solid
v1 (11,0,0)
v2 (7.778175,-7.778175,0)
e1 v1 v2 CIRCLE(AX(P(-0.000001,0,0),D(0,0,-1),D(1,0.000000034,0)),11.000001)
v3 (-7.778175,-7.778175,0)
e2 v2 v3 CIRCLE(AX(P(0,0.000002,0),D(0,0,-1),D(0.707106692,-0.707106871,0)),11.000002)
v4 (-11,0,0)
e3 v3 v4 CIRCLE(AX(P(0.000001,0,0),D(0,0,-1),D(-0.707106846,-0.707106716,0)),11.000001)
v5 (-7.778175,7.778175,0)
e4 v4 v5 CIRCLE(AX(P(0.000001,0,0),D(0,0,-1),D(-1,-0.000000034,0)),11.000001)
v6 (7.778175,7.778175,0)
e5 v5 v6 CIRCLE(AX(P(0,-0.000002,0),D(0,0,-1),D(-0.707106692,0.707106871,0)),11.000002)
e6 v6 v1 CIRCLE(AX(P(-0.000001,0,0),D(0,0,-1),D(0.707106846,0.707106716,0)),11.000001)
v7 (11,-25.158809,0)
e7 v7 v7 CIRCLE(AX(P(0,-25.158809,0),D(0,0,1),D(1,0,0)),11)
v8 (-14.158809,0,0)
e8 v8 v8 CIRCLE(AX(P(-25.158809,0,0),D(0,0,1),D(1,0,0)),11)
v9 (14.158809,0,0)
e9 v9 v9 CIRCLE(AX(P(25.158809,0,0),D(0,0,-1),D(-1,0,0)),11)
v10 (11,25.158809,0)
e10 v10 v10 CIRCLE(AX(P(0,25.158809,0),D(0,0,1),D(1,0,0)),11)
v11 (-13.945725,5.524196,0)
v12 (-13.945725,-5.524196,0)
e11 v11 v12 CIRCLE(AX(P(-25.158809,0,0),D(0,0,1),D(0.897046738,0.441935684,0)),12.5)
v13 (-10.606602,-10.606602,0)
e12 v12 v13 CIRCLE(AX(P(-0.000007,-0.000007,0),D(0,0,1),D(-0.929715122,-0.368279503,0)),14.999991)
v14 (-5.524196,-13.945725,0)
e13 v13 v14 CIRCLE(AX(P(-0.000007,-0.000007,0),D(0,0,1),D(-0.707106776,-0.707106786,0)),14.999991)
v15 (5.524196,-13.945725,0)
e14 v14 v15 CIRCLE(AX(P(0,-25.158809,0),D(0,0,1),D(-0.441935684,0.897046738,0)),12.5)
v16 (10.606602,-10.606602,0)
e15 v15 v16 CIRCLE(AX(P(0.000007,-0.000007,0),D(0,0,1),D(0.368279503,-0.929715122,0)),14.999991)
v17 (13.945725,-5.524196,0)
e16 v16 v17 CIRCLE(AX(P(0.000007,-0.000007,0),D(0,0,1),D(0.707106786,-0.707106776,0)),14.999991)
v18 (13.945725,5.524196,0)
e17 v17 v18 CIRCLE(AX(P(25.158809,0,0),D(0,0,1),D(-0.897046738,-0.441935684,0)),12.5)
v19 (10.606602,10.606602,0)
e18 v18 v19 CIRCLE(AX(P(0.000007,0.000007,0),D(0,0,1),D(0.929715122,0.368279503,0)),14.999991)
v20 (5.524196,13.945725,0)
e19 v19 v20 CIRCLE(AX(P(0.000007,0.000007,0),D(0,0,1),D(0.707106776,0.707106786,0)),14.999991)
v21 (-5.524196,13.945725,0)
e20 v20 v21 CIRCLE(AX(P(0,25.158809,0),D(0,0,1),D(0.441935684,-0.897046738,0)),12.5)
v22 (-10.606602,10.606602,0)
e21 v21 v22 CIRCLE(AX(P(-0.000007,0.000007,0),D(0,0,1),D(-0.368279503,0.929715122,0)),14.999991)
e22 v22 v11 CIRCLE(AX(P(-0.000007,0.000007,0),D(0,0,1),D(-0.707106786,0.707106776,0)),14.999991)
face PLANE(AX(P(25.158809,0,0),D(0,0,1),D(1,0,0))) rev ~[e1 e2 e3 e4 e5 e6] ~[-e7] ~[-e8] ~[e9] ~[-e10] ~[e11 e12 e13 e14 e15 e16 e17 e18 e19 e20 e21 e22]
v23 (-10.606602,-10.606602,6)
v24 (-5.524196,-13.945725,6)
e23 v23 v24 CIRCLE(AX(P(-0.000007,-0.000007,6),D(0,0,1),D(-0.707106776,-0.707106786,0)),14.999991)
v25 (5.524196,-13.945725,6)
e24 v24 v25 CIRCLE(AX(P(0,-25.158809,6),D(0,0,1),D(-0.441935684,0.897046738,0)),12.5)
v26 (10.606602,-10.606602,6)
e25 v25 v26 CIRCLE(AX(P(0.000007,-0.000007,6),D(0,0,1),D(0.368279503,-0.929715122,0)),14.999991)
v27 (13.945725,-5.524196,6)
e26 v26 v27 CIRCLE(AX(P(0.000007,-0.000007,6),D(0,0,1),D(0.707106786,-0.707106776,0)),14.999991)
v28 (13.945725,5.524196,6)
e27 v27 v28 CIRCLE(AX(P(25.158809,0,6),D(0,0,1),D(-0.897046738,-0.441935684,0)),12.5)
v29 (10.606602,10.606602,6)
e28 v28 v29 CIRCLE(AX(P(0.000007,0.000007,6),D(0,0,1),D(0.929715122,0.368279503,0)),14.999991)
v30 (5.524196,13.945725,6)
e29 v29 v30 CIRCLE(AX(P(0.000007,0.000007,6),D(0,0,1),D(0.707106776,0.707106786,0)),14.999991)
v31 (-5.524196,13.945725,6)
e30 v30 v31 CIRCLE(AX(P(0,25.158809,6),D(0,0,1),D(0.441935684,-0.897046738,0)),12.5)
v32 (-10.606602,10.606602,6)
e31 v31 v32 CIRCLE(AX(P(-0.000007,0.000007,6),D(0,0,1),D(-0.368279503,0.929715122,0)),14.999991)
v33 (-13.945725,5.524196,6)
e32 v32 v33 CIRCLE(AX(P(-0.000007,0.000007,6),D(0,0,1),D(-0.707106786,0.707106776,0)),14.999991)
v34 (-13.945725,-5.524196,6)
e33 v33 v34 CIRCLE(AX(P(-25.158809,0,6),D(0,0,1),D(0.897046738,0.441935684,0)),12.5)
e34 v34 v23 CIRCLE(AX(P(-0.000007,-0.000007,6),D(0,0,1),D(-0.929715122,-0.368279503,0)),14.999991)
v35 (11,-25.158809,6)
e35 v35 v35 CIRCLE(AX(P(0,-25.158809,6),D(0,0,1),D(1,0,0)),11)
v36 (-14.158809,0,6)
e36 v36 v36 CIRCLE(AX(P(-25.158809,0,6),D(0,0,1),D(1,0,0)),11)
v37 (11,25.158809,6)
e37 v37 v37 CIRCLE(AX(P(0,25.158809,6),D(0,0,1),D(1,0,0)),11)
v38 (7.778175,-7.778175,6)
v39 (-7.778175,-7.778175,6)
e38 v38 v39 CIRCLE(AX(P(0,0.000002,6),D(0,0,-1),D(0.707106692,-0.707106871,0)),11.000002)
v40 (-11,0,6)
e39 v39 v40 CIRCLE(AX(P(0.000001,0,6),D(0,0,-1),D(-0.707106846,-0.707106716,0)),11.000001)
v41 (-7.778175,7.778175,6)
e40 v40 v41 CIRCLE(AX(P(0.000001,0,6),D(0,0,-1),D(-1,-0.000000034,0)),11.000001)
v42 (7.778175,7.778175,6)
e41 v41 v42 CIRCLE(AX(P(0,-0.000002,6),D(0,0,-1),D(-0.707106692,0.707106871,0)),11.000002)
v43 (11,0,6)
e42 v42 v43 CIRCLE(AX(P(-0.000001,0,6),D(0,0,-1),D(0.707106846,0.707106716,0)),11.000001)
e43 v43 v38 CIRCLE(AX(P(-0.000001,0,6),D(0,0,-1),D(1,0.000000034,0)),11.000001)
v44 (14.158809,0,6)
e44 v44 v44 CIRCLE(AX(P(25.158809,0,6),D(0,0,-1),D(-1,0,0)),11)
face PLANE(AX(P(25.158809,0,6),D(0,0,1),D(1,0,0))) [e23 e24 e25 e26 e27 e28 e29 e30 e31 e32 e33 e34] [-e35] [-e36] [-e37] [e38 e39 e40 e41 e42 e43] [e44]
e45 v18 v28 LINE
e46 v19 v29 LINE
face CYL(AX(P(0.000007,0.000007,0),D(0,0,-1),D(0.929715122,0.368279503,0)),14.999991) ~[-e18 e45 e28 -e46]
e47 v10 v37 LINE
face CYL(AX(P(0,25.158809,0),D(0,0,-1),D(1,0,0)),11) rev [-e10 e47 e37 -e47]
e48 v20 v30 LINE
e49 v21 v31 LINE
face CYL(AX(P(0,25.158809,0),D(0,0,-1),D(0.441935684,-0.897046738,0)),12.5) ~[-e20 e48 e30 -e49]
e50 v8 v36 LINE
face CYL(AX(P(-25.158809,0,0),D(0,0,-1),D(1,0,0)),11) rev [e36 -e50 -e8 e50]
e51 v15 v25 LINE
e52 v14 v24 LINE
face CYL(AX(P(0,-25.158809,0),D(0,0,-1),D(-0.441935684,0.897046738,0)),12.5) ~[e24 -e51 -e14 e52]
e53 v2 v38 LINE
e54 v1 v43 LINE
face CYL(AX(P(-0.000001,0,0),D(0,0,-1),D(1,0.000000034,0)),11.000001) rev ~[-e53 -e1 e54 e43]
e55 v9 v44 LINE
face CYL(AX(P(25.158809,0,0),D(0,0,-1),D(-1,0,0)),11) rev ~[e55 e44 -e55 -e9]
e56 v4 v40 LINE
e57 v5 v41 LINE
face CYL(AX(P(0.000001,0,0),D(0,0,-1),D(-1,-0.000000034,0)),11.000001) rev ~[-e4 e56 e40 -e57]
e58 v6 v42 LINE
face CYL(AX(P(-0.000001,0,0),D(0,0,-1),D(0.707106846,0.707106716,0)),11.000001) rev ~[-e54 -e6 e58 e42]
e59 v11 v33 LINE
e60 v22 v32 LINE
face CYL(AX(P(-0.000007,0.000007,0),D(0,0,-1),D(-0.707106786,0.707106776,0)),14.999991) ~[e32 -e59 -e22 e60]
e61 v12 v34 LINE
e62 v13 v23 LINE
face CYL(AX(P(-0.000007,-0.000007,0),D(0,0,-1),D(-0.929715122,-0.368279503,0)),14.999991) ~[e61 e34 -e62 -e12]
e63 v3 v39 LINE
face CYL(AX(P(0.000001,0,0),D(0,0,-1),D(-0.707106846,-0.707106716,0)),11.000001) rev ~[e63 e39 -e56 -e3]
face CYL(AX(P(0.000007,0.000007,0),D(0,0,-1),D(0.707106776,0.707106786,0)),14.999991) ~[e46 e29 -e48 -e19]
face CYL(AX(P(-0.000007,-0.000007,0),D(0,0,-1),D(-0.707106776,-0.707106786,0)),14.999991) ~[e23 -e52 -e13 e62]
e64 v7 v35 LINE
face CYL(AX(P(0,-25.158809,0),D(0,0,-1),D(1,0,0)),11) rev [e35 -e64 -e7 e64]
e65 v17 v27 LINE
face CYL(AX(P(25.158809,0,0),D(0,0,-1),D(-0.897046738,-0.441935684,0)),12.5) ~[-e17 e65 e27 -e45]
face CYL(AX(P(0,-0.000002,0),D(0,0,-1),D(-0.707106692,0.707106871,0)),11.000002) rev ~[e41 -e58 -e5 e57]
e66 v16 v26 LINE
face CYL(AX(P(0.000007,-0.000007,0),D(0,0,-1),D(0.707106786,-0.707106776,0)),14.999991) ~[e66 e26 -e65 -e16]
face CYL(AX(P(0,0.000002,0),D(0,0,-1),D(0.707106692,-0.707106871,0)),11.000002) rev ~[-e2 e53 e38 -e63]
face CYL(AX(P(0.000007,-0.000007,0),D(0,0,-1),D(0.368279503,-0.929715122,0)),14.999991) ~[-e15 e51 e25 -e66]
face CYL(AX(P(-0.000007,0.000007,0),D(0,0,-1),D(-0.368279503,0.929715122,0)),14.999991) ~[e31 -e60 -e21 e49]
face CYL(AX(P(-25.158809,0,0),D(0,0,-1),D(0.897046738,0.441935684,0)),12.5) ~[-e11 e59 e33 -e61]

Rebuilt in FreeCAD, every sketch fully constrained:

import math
import FreeCAD as App
import Part
import Sketcher
from FreeCAD import Vector
Q = App.Units.Quantity

doc = App.newDocument("Part")
params = doc.addObject("Spreadsheet::Sheet", "Params")
for row, (alias, value) in enumerate([
    ("sketch1_diameter", "22 mm"),
    ("sketch1_radius", "12.5 mm"),
    ("pad1_length", "6 mm"),
], start=1):
    params.set(f"A{row}", alias)
    params.set(f"B{row}", "=" + value)
    params.setAlias(f"B{row}", alias)

body = doc.addObject("PartDesign::Body", "Body")

sketch1 = body.newObject("Sketcher::SketchObject", "Sketch")
sketch1.AttachmentSupport = (doc.getObject("XY_Plane"), [""])
sketch1.MapMode = "FlatFace"
sketch1.addGeometry(Part.ArcOfCircle(Part.Circle(Vector(0, 25.158809, 0), Vector(0, 0, 1), 12.5), math.radians(-63.772549), math.radians(243.772549)), False)
sketch1.addGeometry(Part.ArcOfCircle(Part.Circle(Vector(-0.000007, 0.000007, 0), Vector(0, 0, 1), 14.999991), math.radians(111.609549), math.radians(135)), False)
sketch1.addGeometry(Part.ArcOfCircle(Part.Circle(Vector(-0.000007, 0.000007, 0), Vector(0, 0, 1), 14.999991), math.radians(135), math.radians(158.390451)), False)
sketch1.addGeometry(Part.ArcOfCircle(Part.Circle(Vector(-25.158809, 0, 0), Vector(0, 0, 1), 12.5), math.radians(26.227451), math.radians(333.772549)), False)
sketch1.addGeometry(Part.ArcOfCircle(Part.Circle(Vector(-0.000007, -0.000007, 0), Vector(0, 0, 1), 14.999991), math.radians(-158.390451), math.radians(-135)), False)
sketch1.addGeometry(Part.ArcOfCircle(Part.Circle(Vector(-0.000007, -0.000007, 0), Vector(0, 0, 1), 14.999991), math.radians(-135), math.radians(-111.609549)), False)
sketch1.addGeometry(Part.ArcOfCircle(Part.Circle(Vector(0, -25.158809, 0), Vector(0, 0, 1), 12.5), math.radians(116.227451), math.radians(423.772549)), False)
sketch1.addGeometry(Part.ArcOfCircle(Part.Circle(Vector(0.000007, -0.000007, 0), Vector(0, 0, 1), 14.999991), math.radians(-68.390451), math.radians(-45)), False)
sketch1.addGeometry(Part.ArcOfCircle(Part.Circle(Vector(0.000007, -0.000007, 0), Vector(0, 0, 1), 14.999991), math.radians(-45), math.radians(-21.609549)), False)
sketch1.addGeometry(Part.ArcOfCircle(Part.Circle(Vector(25.158809, 0, 0), Vector(0, 0, 1), 12.5), math.radians(-153.772549), math.radians(153.772549)), False)
sketch1.addGeometry(Part.ArcOfCircle(Part.Circle(Vector(0.000007, 0.000007, 0), Vector(0, 0, 1), 14.999991), math.radians(21.609549), math.radians(45)), False)
sketch1.addGeometry(Part.ArcOfCircle(Part.Circle(Vector(0.000007, 0.000007, 0), Vector(0, 0, 1), 14.999991), math.radians(45), math.radians(68.390451)), False)
sketch1.addGeometry(Part.Circle(Vector(0, -25.158809, 0), Vector(0, 0, 1), 11), False)
sketch1.addGeometry(Part.Circle(Vector(-25.158809, 0, 0), Vector(0, 0, 1), 11), False)
sketch1.addGeometry(Part.ArcOfCircle(Part.Circle(Vector(0.000001, 0, 0), Vector(0, 0, 1), 11.000001), math.radians(135.000005), math.radians(180.000002)), False)
sketch1.addGeometry(Part.ArcOfCircle(Part.Circle(Vector(0, -0.000002, 0), Vector(0, 0, 1), 11.000002), math.radians(45.000007), math.radians(134.999993)), False)
sketch1.addGeometry(Part.ArcOfCircle(Part.Circle(Vector(-0.000001, 0, 0), Vector(0, 0, 1), 11.000001), math.radians(-0.000002), math.radians(44.999995)), False)
sketch1.addGeometry(Part.ArcOfCircle(Part.Circle(Vector(-0.000001, 0, 0), Vector(0, 0, 1), 11.000001), math.radians(-44.999995), math.radians(0.000002)), False)
sketch1.addGeometry(Part.ArcOfCircle(Part.Circle(Vector(0, 0.000002, 0), Vector(0, 0, 1), 11.000002), math.radians(-134.999993), math.radians(-45.000007)), False)
sketch1.addGeometry(Part.ArcOfCircle(Part.Circle(Vector(0.000001, 0, 0), Vector(0, 0, 1), 11.000001), math.radians(179.999998), math.radians(224.999995)), False)
sketch1.addGeometry(Part.Circle(Vector(25.158809, 0, 0), Vector(0, 0, 1), 11), False)
sketch1.addGeometry(Part.Circle(Vector(0, 25.158809, 0), Vector(0, 0, 1), 11), False)
sketch1.addConstraint(Sketcher.Constraint("Coincident", 0, 2, 1, 1))
sketch1.addConstraint(Sketcher.Constraint("Tangent", 1, 2, 2, 1))
sketch1.addConstraint(Sketcher.Constraint("Coincident", 2, 2, 3, 1))
sketch1.addConstraint(Sketcher.Constraint("Coincident", 3, 2, 4, 1))
sketch1.addConstraint(Sketcher.Constraint("Tangent", 4, 2, 5, 1))
sketch1.addConstraint(Sketcher.Constraint("Coincident", 5, 2, 6, 1))
sketch1.addConstraint(Sketcher.Constraint("Coincident", 6, 2, 7, 1))
sketch1.addConstraint(Sketcher.Constraint("Tangent", 7, 2, 8, 1))
sketch1.addConstraint(Sketcher.Constraint("Coincident", 8, 2, 9, 1))
sketch1.addConstraint(Sketcher.Constraint("Coincident", 9, 2, 10, 1))
sketch1.addConstraint(Sketcher.Constraint("Tangent", 10, 2, 11, 1))
sketch1.addConstraint(Sketcher.Constraint("Coincident", 11, 2, 0, 1))
sketch1.addConstraint(Sketcher.Constraint("Tangent", 14, 1, 15, 2))
sketch1.addConstraint(Sketcher.Constraint("Tangent", 15, 1, 16, 2))
sketch1.addConstraint(Sketcher.Constraint("Tangent", 16, 1, 17, 2))
sketch1.addConstraint(Sketcher.Constraint("Tangent", 17, 1, 18, 2))
sketch1.addConstraint(Sketcher.Constraint("Tangent", 18, 1, 19, 2))
sketch1.addConstraint(Sketcher.Constraint("Tangent", 19, 1, 14, 2))
sketch1.addConstraint(Sketcher.Constraint("Coincident", 1, 3, -1, 1))
sketch1.addConstraint(Sketcher.Constraint("Coincident", 4, 3, -1, 1))
sketch1.addConstraint(Sketcher.Constraint("Coincident", 7, 3, -1, 1))
sketch1.addConstraint(Sketcher.Constraint("Coincident", 10, 3, -1, 1))
sketch1.addConstraint(Sketcher.Constraint("Coincident", 14, 3, -1, 1))
sketch1.addConstraint(Sketcher.Constraint("Coincident", 16, 3, -1, 1))
sketch1.addConstraint(Sketcher.Constraint("Coincident", 12, 3, 6, 3))
sketch1.addConstraint(Sketcher.Constraint("Coincident", 13, 3, 3, 3))
sketch1.addConstraint(Sketcher.Constraint("Coincident", 20, 3, 9, 3))
sketch1.addConstraint(Sketcher.Constraint("Coincident", 21, 3, 0, 3))
sketch1.addConstraint(Sketcher.Constraint("Equal", 1, 2))
sketch1.addConstraint(Sketcher.Constraint("Equal", 0, 3))
sketch1.addConstraint(Sketcher.Constraint("Equal", 2, 4))
sketch1.addConstraint(Sketcher.Constraint("Equal", 4, 5))
sketch1.addConstraint(Sketcher.Constraint("Equal", 3, 6))
sketch1.addConstraint(Sketcher.Constraint("Equal", 5, 7))
sketch1.addConstraint(Sketcher.Constraint("Equal", 7, 8))
sketch1.addConstraint(Sketcher.Constraint("Equal", 6, 9))
sketch1.addConstraint(Sketcher.Constraint("Equal", 8, 10))
sketch1.addConstraint(Sketcher.Constraint("Equal", 10, 11))
sketch1.addConstraint(Sketcher.Constraint("Equal", 12, 13))
sketch1.addConstraint(Sketcher.Constraint("Equal", 13, 14))
sketch1.addConstraint(Sketcher.Constraint("Equal", 16, 17))
sketch1.addConstraint(Sketcher.Constraint("Equal", 19, 20))
sketch1.addConstraint(Sketcher.Constraint("Equal", 20, 21))
sketch1.addConstraint(Sketcher.Constraint("Symmetric", 0, 3, 6, 3, -1, 1))
sketch1.addConstraint(Sketcher.Constraint("Symmetric", 3, 3, 9, 3, -1, 1))
sketch1.addConstraint(Sketcher.Constraint("PointOnObject", 0, 3, -2))
sketch1.addConstraint(Sketcher.Constraint("PointOnObject", 3, 3, -1))
sketch1.addConstraint(Sketcher.Constraint("PointOnObject", 16, 1, -1))
sketch1.addConstraint(Sketcher.Constraint("PointOnObject", 19, 1, -1))
sketch1.addConstraint(Sketcher.Constraint("Horizontal", 4, 2, 7, 2))
sketch1.addConstraint(Sketcher.Constraint("Horizontal", 1, 2, 10, 2))
sketch1.addConstraint(Sketcher.Constraint("Horizontal", 14, 1, 15, 1))
sketch1.addConstraint(Sketcher.Constraint("Horizontal", 17, 1, 18, 1))
sketch1.addConstraint(Sketcher.Constraint("Vertical", 1, 2, 4, 2))
sketch1.addConstraint(Sketcher.Constraint("Vertical", 15, 1, 17, 1))
sketch1.addConstraint(Sketcher.Constraint("Diameter", 12, Q("22 mm")))
sketch1.addConstraint(Sketcher.Constraint("Radius", 0, Q("12.5 mm")))
sketch1.addConstraint(Sketcher.Constraint("Radius", 1, Q("14.999991 mm")))
sketch1.addConstraint(Sketcher.Constraint("DistanceX", 1, 2, -1, 1, Q("10.606602 mm")))
sketch1.addConstraint(Sketcher.Constraint("DistanceY", -1, 1, 0, 3, Q("25.158809 mm")))
sketch1.addConstraint(Sketcher.Constraint("DistanceX", 3, 3, -1, 1, Q("25.158809 mm")))
sketch1.addConstraint(Sketcher.Constraint("DistanceX", 2, 2, 14, 1, Q("6.16755 mm")))
sketch1.setExpression("Constraints[55]", "Params.sketch1_diameter")
sketch1.setExpression("Constraints[56]", "Params.sketch1_radius")
pad1 = body.newObject("PartDesign::Pad", "Pad")
pad1.Profile = sketch1
pad1.setExpression("Length", "Params.pad1_length")

doc.recompute()
